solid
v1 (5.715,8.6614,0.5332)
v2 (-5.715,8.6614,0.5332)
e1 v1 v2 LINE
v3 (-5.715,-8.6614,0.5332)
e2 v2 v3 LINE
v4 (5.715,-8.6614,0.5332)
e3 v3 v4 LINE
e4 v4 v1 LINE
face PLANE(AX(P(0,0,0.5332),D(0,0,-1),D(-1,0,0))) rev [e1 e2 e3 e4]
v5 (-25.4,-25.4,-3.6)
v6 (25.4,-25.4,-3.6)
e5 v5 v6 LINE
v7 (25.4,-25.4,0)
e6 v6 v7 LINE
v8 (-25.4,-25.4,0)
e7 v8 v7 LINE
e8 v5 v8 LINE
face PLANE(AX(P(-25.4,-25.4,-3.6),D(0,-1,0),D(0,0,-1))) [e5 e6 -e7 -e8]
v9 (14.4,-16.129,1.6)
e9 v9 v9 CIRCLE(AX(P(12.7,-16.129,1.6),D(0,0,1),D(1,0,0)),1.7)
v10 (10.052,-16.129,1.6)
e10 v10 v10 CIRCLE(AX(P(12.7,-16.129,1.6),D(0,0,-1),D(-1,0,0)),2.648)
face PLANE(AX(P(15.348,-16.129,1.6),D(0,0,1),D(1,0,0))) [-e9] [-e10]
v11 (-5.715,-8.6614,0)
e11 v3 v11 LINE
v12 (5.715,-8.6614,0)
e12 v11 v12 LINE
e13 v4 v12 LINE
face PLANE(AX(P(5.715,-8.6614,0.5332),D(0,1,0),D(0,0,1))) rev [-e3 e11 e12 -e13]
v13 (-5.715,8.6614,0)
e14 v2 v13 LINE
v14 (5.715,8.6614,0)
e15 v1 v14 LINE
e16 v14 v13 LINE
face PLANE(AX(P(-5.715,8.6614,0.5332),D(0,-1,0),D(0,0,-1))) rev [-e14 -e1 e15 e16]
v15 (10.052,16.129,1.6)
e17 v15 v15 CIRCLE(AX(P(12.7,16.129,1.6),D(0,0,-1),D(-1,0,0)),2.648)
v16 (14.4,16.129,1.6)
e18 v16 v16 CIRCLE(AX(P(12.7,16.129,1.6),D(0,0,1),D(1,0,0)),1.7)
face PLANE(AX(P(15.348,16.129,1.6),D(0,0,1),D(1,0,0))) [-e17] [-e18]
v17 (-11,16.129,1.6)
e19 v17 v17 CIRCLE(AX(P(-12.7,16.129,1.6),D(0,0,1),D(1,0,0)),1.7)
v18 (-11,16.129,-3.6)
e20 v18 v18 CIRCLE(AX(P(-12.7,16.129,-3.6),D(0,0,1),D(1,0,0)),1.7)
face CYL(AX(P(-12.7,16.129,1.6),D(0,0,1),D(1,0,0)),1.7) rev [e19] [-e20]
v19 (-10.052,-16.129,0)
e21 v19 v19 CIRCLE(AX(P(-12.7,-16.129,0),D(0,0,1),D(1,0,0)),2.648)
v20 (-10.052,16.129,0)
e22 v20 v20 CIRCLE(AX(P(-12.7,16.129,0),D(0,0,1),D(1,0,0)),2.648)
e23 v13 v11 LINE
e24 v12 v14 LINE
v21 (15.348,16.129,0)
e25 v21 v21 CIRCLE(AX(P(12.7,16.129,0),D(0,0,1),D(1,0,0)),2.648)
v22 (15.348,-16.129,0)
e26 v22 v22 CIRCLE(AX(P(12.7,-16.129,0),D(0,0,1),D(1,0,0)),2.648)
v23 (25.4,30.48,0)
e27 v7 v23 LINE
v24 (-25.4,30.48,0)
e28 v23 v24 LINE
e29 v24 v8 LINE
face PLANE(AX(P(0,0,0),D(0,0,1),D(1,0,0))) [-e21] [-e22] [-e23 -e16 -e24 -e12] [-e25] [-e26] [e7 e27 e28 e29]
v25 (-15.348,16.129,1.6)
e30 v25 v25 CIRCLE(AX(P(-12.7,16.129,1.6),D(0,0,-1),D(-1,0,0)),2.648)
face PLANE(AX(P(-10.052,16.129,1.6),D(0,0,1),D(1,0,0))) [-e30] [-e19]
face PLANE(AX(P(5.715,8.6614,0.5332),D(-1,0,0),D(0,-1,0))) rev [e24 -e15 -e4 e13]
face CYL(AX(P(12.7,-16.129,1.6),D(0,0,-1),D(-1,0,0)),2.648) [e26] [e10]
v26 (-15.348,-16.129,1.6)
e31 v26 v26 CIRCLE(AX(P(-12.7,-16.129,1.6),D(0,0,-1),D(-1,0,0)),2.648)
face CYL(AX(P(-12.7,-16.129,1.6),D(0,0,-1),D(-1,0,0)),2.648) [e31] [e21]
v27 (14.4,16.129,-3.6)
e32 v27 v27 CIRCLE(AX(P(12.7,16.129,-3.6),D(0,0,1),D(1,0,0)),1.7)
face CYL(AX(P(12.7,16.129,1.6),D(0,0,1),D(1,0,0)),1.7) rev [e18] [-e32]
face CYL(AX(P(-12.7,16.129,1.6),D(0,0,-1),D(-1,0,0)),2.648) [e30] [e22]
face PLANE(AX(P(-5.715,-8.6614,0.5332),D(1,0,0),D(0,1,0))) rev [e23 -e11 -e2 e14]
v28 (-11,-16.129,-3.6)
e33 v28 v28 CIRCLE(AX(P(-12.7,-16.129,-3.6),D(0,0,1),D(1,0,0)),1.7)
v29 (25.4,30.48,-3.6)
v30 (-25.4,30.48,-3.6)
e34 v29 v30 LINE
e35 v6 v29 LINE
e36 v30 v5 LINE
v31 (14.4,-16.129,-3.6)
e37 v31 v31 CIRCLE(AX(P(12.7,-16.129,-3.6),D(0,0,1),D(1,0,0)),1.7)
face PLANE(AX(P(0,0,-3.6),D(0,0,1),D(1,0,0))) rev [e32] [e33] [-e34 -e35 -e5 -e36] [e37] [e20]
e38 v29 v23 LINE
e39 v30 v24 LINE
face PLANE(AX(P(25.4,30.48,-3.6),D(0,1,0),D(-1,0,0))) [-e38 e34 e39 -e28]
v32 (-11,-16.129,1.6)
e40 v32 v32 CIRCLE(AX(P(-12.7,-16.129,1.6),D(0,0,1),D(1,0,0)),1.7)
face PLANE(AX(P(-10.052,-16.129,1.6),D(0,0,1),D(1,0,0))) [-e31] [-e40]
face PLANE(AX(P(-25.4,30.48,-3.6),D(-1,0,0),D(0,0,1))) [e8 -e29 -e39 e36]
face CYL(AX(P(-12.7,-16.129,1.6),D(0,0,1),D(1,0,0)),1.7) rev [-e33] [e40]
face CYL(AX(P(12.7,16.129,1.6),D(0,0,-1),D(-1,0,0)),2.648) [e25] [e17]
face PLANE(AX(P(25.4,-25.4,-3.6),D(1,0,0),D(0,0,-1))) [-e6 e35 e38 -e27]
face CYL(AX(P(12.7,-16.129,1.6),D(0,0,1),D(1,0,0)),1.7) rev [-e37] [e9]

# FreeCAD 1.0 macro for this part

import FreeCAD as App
import Part
import Sketcher
from FreeCAD import Vector
Q = App.Units.Quantity

doc = App.newDocument("Part")
body = doc.addObject("PartDesign::Body", "Body")

# Sketch on XY plane
sketch1 = body.newObject("Sketcher::SketchObject", "Sketch")
sketch1.AttachmentSupport = (doc.getObject("XY_Plane"), [""])
sketch1.MapMode = "FlatFace"
sketch1.addGeometry(Part.LineSegment(Vector(-25.4, 30.48, 0), Vector(-25.4, -25.4, 0)), False)
sketch1.addGeometry(Part.LineSegment(Vector(-25.4, -25.4, 0), Vector(25.4, -25.4, 0)), False)
sketch1.addGeometry(Part.LineSegment(Vector(25.4, -25.4, 0), Vector(25.4, 30.48, 0)), False)
sketch1.addGeometry(Part.LineSegment(Vector(25.4, 30.48, 0), Vector(-25.4, 30.48, 0)), False)
sketch1.addConstraint(Sketcher.Constraint("Coincident", 0, 2, 1, 1))
sketch1.addConstraint(Sketcher.Constraint("Coincident", 1, 2, 2, 1))
sketch1.addConstraint(Sketcher.Constraint("Coincident", 2, 2, 3, 1))
sketch1.addConstraint(Sketcher.Constraint("Coincident", 3, 2, 0, 1))
sketch1.addConstraint(Sketcher.Constraint("Vertical", 0))
sketch1.addConstraint(Sketcher.Constraint("Horizontal", 1))
sketch1.addConstraint(Sketcher.Constraint("Vertical", 2))
sketch1.addConstraint(Sketcher.Constraint("Horizontal", 3))
sketch1.addConstraint(Sketcher.Constraint("DistanceX", 1, 1, 1, 2, Q("2 in")))
sketch1.addConstraint(Sketcher.Constraint("DistanceY", 0, 2, 0, 1, Q("2.2 in")))
sketch1.addConstraint(Sketcher.Constraint("DistanceX", 0, 2, -1, 1, Q("1 in")))
sketch1.addConstraint(Sketcher.Constraint("DistanceY", 0, 2, -1, 1, Q("1 in")))
pad1 = body.newObject("PartDesign::Pad", "Pad")
pad1.Profile = sketch1
pad1.Length = 3.6
pad1.Reversed = True

# Sketch on XY plane
sketch2 = body.newObject("Sketcher::SketchObject", "Sketch001")
sketch2.AttachmentSupport = (doc.getObject("XY_Plane"), [""])
sketch2.MapMode = "FlatFace"
sketch2.addGeometry(Part.LineSegment(Vector(-5.715, 8.6614, 0), Vector(-5.715, -8.6614, 0)), False)
sketch2.addGeometry(Part.LineSegment(Vector(-5.715, -8.6614, 0), Vector(5.715, -8.6614, 0)), False)
sketch2.addGeometry(Part.LineSegment(Vector(5.715, -8.6614, 0), Vector(5.715, 8.6614, 0)), False)
sketch2.addGeometry(Part.LineSegment(Vector(5.715, 8.6614, 0), Vector(-5.715, 8.6614, 0)), False)
sketch2.addConstraint(Sketcher.Constraint("Coincident", 0, 2, 1, 1))
sketch2.addConstraint(Sketcher.Constraint("Coincident", 1, 2, 2, 1))
sketch2.addConstraint(Sketcher.Constraint("Coincident", 2, 2, 3, 1))
sketch2.addConstraint(Sketcher.Constraint("Coincident", 3, 2, 0, 1))
sketch2.addConstraint(Sketcher.Constraint("Vertical", 0))
sketch2.addConstraint(Sketcher.Constraint("Horizontal", 1))
sketch2.addConstraint(Sketcher.Constraint("Vertical", 2))
sketch2.addConstraint(Sketcher.Constraint("Horizontal", 3))
sketch2.addConstraint(Sketcher.Constraint("Symmetric", 0, 2, 2, 2, -1, 1))
sketch2.addConstraint(Sketcher.Constraint("DistanceX", 1, 1, 1, 2, Q("0.45 in")))
sketch2.addConstraint(Sketcher.Constraint("DistanceY", 0, 2, 0, 1, Q("0.682 in")))
pad2 = body.newObject("PartDesign::Pad", "Pad001")
pad2.Profile = sketch2
pad2.Length = 0.5332

# Sketch on XZ plane
sketch3 = body.newObject("Sketcher::SketchObject", "Sketch002")
sketch3.AttachmentSupport = (doc.getObject("XZ_Plane"), [""])
sketch3.MapMode = "FlatFace"
sketch3.AttachmentOffset = App.Placement(Vector(0, 0, -0.635 * 25.4), App.Rotation())
sketch3.addGeometry(Part.LineSegment(Vector(-12.7, 1.6, 0), Vector(-12.7, 0, 0)), False)
sketch3.addGeometry(Part.LineSegment(Vector(-12.7, 0, 0), Vector(-10.052, 0, 0)), False)
sketch3.addGeometry(Part.LineSegment(Vector(-10.052, 0, 0), Vector(-10.052, 1.6, 0)), False)
sketch3.addGeometry(Part.LineSegment(Vector(-10.052, 1.6, 0), Vector(-12.7, 1.6, 0)), False)
sketch3.addGeometry(Part.LineSegment(Vector(-12.7, 1.6, 0), Vector(-12.7, 0, 0)), True)  # axis
sketch3.addConstraint(Sketcher.Constraint("Coincident", 0, 2, 1, 1))
sketch3.addConstraint(Sketcher.Constraint("Coincident", 1, 2, 2, 1))
sketch3.addConstraint(Sketcher.Constraint("Coincident", 2, 2, 3, 1))
sketch3.addConstraint(Sketcher.Constraint("Coincident", 3, 2, 0, 1))
sketch3.addConstraint(Sketcher.Constraint("Vertical", 0))
sketch3.addConstraint(Sketcher.Constraint("Horizontal", 1))
sketch3.addConstraint(Sketcher.Constraint("Vertical", 2))
sketch3.addConstraint(Sketcher.Constraint("Horizontal", 3))
sketch3.addConstraint(Sketcher.Constraint("Vertical", 4))
sketch3.addConstraint(Sketcher.Constraint("Coincident", 4, 1, 3, 2))
sketch3.addConstraint(Sketcher.Constraint("PointOnObject", 0, 2, -1))
sketch3.addConstraint(Sketcher.Constraint("PointOnObject", 4, 2, -1))
sketch3.addConstraint(Sketcher.Constraint("DistanceX", 0, 2, -1, 1, Q("0.5 in")))
sketch3.addConstraint(Sketcher.Constraint("DistanceX", 1, 1, 1, 2, 2.648))
sketch3.addConstraint(Sketcher.Constraint("DistanceY", 0, 2, 0, 1, 1.6))
revolution = body.newObject("PartDesign::Revolution", "Revolution")
revolution.Profile = sketch3
revolution.ReferenceAxis = (sketch3, ["Axis0"])
revolution.Angle = 360

# Sketch on XZ plane
sketch4 = body.newObject("Sketcher::SketchObject", "Sketch003")
sketch4.AttachmentSupport = (doc.getObject("XZ_Plane"), [""])
sketch4.MapMode = "FlatFace"
sketch4.AttachmentOffset = App.Placement(Vector(0, 0, 0.635 * 25.4), App.Rotation())
sketch4.addGeometry(Part.LineSegment(Vector(-12.7, 1.6, 0), Vector(-12.7, 0, 0)), False)
sketch4.addGeometry(Part.LineSegment(Vector(-12.7, 0, 0), Vector(-10.052, 0, 0)), False)
sketch4.addGeometry(Part.LineSegment(Vector(-10.052, 0, 0), Vector(-10.052, 1.6, 0)), False)
sketch4.addGeometry(Part.LineSegment(Vector(-10.052, 1.6, 0), Vector(-12.7, 1.6, 0)), False)
sketch4.addGeometry(Part.LineSegment(Vector(-12.7, 1.6, 0), Vector(-12.7, 0, 0)), True)  # axis
sketch4.addConstraint(Sketcher.Constraint("Coincident", 0, 2, 1, 1))
sketch4.addConstraint(Sketcher.Constraint("Coincident", 1, 2, 2, 1))
sketch4.addConstraint(Sketcher.Constraint("Coincident", 2, 2, 3, 1))
sketch4.addConstraint(Sketcher.Constraint("Coincident", 3, 2, 0, 1))
sketch4.addConstraint(Sketcher.Constraint("Vertical", 0))
sketch4.addConstraint(Sketcher.Constraint("Horizontal", 1))
sketch4.addConstraint(Sketcher.Constraint("Vertical", 2))
sketch4.addConstraint(Sketcher.Constraint("Horizontal", 3))
sketch4.addConstraint(Sketcher.Constraint("Vertical", 4))
sketch4.addConstraint(Sketcher.Constraint("Coincident", 4, 1, 3, 2))
sketch4.addConstraint(Sketcher.Constraint("PointOnObject", 0, 2, -1))
sketch4.addConstraint(Sketcher.Constraint("PointOnObject", 4, 2, -1))
sketch4.addConstraint(Sketcher.Constraint("DistanceX", 0, 2, -1, 1, Q("0.5 in")))
sketch4.addConstraint(Sketcher.Constraint("DistanceX", 1, 1, 1, 2, 2.648))
sketch4.addConstraint(Sketcher.Constraint("DistanceY", 0, 2, 0, 1, 1.6))
revolution2 = body.newObject("PartDesign::Revolution", "Revolution001")
revolution2.Profile = sketch4
revolution2.ReferenceAxis = (sketch4, ["Axis0"])
revolution2.Angle = 360

# Sketch on XZ plane
sketch5 = body.newObject("Sketcher::SketchObject", "Sketch004")
sketch5.AttachmentSupport = (doc.getObject("XZ_Plane"), [""])
sketch5.MapMode = "FlatFace"
sketch5.AttachmentOffset = App.Placement(Vector(0, 0, 0.635 * 25.4), App.Rotation())
sketch5.addGeometry(Part.LineSegment(Vector(12.7, 1.6, 0), Vector(12.7, 0, 0)), False)
sketch5.addGeometry(Part.LineSegment(Vector(12.7, 0, 0), Vector(15.348, 0, 0)), False)
sketch5.addGeometry(Part.LineSegment(Vector(15.348, 0, 0), Vector(15.348, 1.6, 0)), False)
sketch5.addGeometry(Part.LineSegment(Vector(15.348, 1.6, 0), Vector(12.7, 1.6, 0)), False)
sketch5.addGeometry(Part.LineSegment(Vector(12.7, 1.6, 0), Vector(12.7, 0, 0)), True)  # axis
sketch5.addConstraint(Sketcher.Constraint("Coincident", 0, 2, 1, 1))
sketch5.addConstraint(Sketcher.Constraint("Coincident", 1, 2, 2, 1))
sketch5.addConstraint(Sketcher.Constraint("Coincident", 2, 2, 3, 1))
sketch5.addConstraint(Sketcher.Constraint("Coincident", 3, 2, 0, 1))
sketch5.addConstraint(Sketcher.Constraint("Vertical", 0))
sketch5.addConstraint(Sketcher.Constraint("Horizontal", 1))
sketch5.addConstraint(Sketcher.Constraint("Vertical", 2))
sketch5.addConstraint(Sketcher.Constraint("Horizontal", 3))
sketch5.addConstraint(Sketcher.Constraint("Vertical", 4))
sketch5.addConstraint(Sketcher.Constraint("Coincident", 4, 1, 3, 2))
sketch5.addConstraint(Sketcher.Constraint("PointOnObject", 0, 2, -1))
sketch5.addConstraint(Sketcher.Constraint("PointOnObject", 4, 2, -1))
sketch5.addConstraint(Sketcher.Constraint("DistanceX", -1, 1, 0, 2, Q("0.5 in")))
sketch5.addConstraint(Sketcher.Constraint("DistanceX", 1, 1, 1, 2, 2.648))
sketch5.addConstraint(Sketcher.Constraint("DistanceY", 0, 2, 0, 1, 1.6))
revolution3 = body.newObject("PartDesign::Revolution", "Revolution002")
revolution3.Profile = sketch5
revolution3.ReferenceAxis = (sketch5, ["Axis0"])
revolution3.Angle = 360

# Sketch on XZ plane
sketch6 = body.newObject("Sketcher::SketchObject", "Sketch005")
sketch6.AttachmentSupport = (doc.getObject("XZ_Plane"), [""])
sketch6.MapMode = "FlatFace"
sketch6.AttachmentOffset = App.Placement(Vector(0, 0, -0.635 * 25.4), App.Rotation())
sketch6.addGeometry(Part.LineSegment(Vector(12.7, 1.6, 0), Vector(12.7, 0, 0)), False)
sketch6.addGeometry(Part.LineSegment(Vector(12.7, 0, 0), Vector(15.348, 0, 0)), False)
sketch6.addGeometry(Part.LineSegment(Vector(15.348, 0, 0), Vector(15.348, 1.6, 0)), False)
sketch6.addGeometry(Part.LineSegment(Vector(15.348, 1.6, 0), Vector(12.7, 1.6, 0)), False)
sketch6.addGeometry(Part.LineSegment(Vector(12.7, 1.6, 0), Vector(12.7, 0, 0)), True)  # axis
sketch6.addConstraint(Sketcher.Constraint("Coincident", 0, 2, 1, 1))
sketch6.addConstraint(Sketcher.Constraint("Coincident", 1, 2, 2, 1))
sketch6.addConstraint(Sketcher.Constraint("Coincident", 2, 2, 3, 1))
sketch6.addConstraint(Sketcher.Constraint("Coincident", 3, 2, 0, 1))
sketch6.addConstraint(Sketcher.Constraint("Vertical", 0))
sketch6.addConstraint(Sketcher.Constraint("Horizontal", 1))
sketch6.addConstraint(Sketcher.Constraint("Vertical", 2))
sketch6.addConstraint(Sketcher.Constraint("Horizontal", 3))
sketch6.addConstraint(Sketcher.Constraint("Vertical", 4))
sketch6.addConstraint(Sketcher.Constraint("Coincident", 4, 1, 3, 2))
sketch6.addConstraint(Sketcher.Constraint("PointOnObject", 0, 2, -1))
sketch6.addConstraint(Sketcher.Constraint("PointOnObject", 4, 2, -1))
sketch6.addConstraint(Sketcher.Constraint("DistanceX", -1, 1, 0, 2, Q("0.5 in")))
sketch6.addConstraint(Sketcher.Constraint("DistanceX", 1, 1, 1, 2, 2.648))
sketch6.addConstraint(Sketcher.Constraint("DistanceY", 0, 2, 0, 1, 1.6))
revolution4 = body.newObject("PartDesign::Revolution", "Revolution003")
revolution4.Profile = sketch6
revolution4.ReferenceAxis = (sketch6, ["Axis0"])
revolution4.Angle = 360

# Sketch on XY plane
sketch7 = body.newObject("Sketcher::SketchObject", "Sketch006")
sketch7.AttachmentSupport = (doc.getObject("XY_Plane"), [""])
sketch7.MapMode = "FlatFace"
sketch7.AttachmentOffset = App.Placement(Vector(0, 0, 1.6), App.Rotation())
sketch7.addGeometry(Part.Circle(Vector(-12.7, -16.129, 0), Vector(0, 0, 1), 1.7), False)
sketch7.addGeometry(Part.Circle(Vector(12.7, -16.129, 0), Vector(0, 0, 1), 1.7), False)
sketch7.addGeometry(Part.Circle(Vector(12.7, 16.129, 0), Vector(0, 0, 1), 1.7), False)
sketch7.addGeometry(Part.Circle(Vector(-12.7, 16.129, 0), Vector(0, 0, 1), 1.7), False)
sketch7.addConstraint(Sketcher.Constraint("Equal", 0, 1))
sketch7.addConstraint(Sketcher.Constraint("Equal", 1, 2))
sketch7.addConstraint(Sketcher.Constraint("Equal", 2, 3))
sketch7.addConstraint(Sketcher.Constraint("Symmetric", 0, 3, 2, 3, -1, 1))
sketch7.addConstraint(Sketcher.Constraint("Symmetric", 1, 3, 3, 3, -1, 1))
sketch7.addConstraint(Sketcher.Constraint("Symmetric", 0, 3, 1, 3, -2))
sketch7.addConstraint(Sketcher.Constraint("DistanceX", 0, 3, 1, 3, Q("1 in")))
sketch7.addConstraint(Sketcher.Constraint("Diameter", 0, 3.4))
sketch7.addConstraint(Sketcher.Constraint("DistanceY", 1, 3, 2, 3, Q("1.27 in")))
doc.recompute()
hole = body.newObject("PartDesign::Hole", "Hole")
hole.Profile = sketch7
hole.ThreadType = "None"
hole.Diameter = 3.4
hole.DepthType = "ThroughAll"

doc.recompute()
